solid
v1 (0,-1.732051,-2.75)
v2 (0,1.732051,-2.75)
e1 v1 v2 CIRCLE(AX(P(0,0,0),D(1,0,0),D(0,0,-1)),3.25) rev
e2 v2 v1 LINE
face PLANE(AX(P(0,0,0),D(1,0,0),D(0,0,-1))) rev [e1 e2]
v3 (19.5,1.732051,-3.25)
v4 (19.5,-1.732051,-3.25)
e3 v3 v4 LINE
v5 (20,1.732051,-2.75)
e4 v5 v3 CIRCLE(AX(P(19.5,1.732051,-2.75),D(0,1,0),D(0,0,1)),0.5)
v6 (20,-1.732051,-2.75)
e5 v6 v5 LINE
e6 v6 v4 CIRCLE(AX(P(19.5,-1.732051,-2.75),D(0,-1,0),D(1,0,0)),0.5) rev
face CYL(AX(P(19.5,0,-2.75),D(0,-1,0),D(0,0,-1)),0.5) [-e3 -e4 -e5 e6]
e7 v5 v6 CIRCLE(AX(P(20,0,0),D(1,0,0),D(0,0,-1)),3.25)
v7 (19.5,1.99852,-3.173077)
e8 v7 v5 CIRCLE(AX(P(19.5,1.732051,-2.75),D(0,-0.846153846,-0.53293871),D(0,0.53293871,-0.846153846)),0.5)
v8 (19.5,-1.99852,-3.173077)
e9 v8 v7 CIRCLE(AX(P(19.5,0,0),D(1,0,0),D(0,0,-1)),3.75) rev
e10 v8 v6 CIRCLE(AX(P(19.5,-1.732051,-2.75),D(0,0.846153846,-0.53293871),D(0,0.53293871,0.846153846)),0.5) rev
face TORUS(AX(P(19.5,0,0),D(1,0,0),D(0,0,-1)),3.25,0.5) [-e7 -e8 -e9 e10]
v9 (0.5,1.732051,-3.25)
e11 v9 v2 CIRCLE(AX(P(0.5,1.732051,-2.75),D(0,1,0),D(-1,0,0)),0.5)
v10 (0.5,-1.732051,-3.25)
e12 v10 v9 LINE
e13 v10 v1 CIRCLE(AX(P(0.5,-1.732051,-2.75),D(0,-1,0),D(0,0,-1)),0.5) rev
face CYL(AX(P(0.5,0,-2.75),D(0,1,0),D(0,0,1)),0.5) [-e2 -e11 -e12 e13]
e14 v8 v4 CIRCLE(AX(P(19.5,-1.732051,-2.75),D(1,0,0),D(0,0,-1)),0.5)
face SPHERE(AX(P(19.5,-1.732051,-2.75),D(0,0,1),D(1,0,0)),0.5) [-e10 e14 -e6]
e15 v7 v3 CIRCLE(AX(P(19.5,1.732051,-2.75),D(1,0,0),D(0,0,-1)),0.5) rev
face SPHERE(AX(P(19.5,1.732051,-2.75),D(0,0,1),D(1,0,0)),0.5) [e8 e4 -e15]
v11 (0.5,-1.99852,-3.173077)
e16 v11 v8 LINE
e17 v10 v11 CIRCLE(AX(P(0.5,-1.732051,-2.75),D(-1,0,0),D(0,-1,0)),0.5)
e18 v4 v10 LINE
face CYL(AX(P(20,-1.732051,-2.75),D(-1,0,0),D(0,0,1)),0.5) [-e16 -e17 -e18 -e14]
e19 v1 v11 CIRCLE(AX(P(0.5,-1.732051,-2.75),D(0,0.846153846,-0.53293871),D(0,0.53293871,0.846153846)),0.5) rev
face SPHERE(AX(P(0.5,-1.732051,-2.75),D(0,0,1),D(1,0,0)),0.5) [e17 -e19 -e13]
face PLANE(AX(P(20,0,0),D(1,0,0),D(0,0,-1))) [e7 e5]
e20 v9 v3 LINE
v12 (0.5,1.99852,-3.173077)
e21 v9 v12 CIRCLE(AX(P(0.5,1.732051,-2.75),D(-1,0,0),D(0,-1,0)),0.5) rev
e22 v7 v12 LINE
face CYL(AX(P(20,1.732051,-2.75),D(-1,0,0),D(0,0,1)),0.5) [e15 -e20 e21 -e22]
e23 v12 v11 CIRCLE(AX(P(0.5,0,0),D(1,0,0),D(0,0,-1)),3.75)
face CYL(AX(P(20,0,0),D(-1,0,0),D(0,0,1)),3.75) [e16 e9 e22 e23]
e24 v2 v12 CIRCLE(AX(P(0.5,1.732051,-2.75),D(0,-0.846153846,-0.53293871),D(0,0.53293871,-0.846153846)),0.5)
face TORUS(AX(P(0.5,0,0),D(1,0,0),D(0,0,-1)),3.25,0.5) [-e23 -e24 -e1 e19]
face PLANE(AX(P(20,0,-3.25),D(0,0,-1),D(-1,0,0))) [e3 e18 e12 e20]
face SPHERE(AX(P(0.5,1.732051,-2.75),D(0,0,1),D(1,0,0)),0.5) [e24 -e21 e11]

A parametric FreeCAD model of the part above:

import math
import FreeCAD as App
import Part
import Sketcher

V = App.Vector
Q = App.Units.Quantity

doc = App.newDocument("Part")
body = doc.addObject("PartDesign::Body", "Body")

# Sketch on YZ plane
sketch1 = body.newObject("Sketcher::SketchObject", "Sketch")
sketch1.AttachmentSupport = (doc.getObject("YZ_Plane"), [""])
sketch1.MapMode = "FlatFace"
sketch1.addGeometry(Part.LineSegment(V(-1.870829, -3.25, 0), V(1.870829, -3.25, 0)), False)
sketch1.addGeometry(Part.ArcOfCircle(Part.Circle(V(0, 0, 0), V(0, 0, 1), 3.75), math.radians(-60.073565), math.radians(240.073565)), False)
sketch1.addConstraint(Sketcher.Constraint("Coincident", 0, 1, 1, 2))
sketch1.addConstraint(Sketcher.Constraint("Coincident", 1, 1, 0, 2))
sketch1.addConstraint(Sketcher.Constraint("Horizontal", 0))
sketch1.addConstraint(Sketcher.Constraint("Coincident", 1, 3, -1, 1))
sketch1.addConstraint(Sketcher.Constraint("Radius", 1, Q("3.75 mm")))
sketch1.addConstraint(Sketcher.Constraint("DistanceY", 0, 1, -1, 1, Q("3.25 mm")))
pad1 = body.newObject("PartDesign::Pad", "Pad")
pad1.Profile = sketch1
pad1.Length = 20
doc.recompute()

fillet = body.newObject("PartDesign::Fillet", "Fillet")
fillet.Base = (pad1, ["Edge1"])
fillet.UseAllEdges = True
fillet.Radius = 0.5

doc.recompute()
